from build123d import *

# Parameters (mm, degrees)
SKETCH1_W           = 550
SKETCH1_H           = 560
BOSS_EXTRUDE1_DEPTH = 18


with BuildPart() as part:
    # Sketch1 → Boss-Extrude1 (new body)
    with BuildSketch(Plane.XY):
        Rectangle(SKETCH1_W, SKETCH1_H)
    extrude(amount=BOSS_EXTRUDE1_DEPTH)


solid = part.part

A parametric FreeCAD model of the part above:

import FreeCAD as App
import Part
import Sketcher
from FreeCAD import Vector
Q = App.Units.Quantity

doc = App.newDocument("Part")
body = doc.addObject("PartDesign::Body", "Body")

# Sketch on XY plane
sketch1 = body.newObject("Sketcher::SketchObject", "Sketch")
sketch1.AttachmentSupport = (doc.getObject("XY_Plane"), [""])
sketch1.MapMode = "FlatFace"
sketch1.addGeometry(Part.LineSegment(Vector(-275, 280, 0), Vector(-275, -280, 0)), False)
sketch1.addGeometry(Part.LineSegment(Vector(-275, -280, 0), Vector(275, -280, 0)), False)
sketch1.addGeometry(Part.LineSegment(Vector(275, -280, 0), Vector(275, 280, 0)), False)
sketch1.addGeometry(Part.LineSegment(Vector(275, 280, 0), Vector(-275, 280, 0)), False)
sketch1.addConstraint(Sketcher.Constraint("Coincident", 0, 2, 1, 1))
sketch1.addConstraint(Sketcher.Constraint("Coincident", 1, 2, 2, 1))
sketch1.addConstraint(Sketcher.Constraint("Coincident", 2, 2, 3, 1))
sketch1.addConstraint(Sketcher.Constraint("Coincident", 3, 2, 0, 1))
sketch1.addConstraint(Sketcher.Constraint("Vertical", 0))
sketch1.addConstraint(Sketcher.Constraint("Horizontal", 1))
sketch1.addConstraint(Sketcher.Constraint("Vertical", 2))
sketch1.addConstraint(Sketcher.Constraint("Horizontal", 3))
sketch1.addConstraint(Sketcher.Constraint("Symmetric", 0, 2, 2, 2, -1, 1))
sketch1.addConstraint(Sketcher.Constraint("DistanceX", 1, 1, 1, 2, Q("550 mm")))
sketch1.addConstraint(Sketcher.Constraint("DistanceY", 0, 2, 0, 1, Q("560 mm")))
pad1 = body.newObject("PartDesign::Pad", "Pad")
pad1.Profile = sketch1
pad1.Length = 18

doc.recompute()
